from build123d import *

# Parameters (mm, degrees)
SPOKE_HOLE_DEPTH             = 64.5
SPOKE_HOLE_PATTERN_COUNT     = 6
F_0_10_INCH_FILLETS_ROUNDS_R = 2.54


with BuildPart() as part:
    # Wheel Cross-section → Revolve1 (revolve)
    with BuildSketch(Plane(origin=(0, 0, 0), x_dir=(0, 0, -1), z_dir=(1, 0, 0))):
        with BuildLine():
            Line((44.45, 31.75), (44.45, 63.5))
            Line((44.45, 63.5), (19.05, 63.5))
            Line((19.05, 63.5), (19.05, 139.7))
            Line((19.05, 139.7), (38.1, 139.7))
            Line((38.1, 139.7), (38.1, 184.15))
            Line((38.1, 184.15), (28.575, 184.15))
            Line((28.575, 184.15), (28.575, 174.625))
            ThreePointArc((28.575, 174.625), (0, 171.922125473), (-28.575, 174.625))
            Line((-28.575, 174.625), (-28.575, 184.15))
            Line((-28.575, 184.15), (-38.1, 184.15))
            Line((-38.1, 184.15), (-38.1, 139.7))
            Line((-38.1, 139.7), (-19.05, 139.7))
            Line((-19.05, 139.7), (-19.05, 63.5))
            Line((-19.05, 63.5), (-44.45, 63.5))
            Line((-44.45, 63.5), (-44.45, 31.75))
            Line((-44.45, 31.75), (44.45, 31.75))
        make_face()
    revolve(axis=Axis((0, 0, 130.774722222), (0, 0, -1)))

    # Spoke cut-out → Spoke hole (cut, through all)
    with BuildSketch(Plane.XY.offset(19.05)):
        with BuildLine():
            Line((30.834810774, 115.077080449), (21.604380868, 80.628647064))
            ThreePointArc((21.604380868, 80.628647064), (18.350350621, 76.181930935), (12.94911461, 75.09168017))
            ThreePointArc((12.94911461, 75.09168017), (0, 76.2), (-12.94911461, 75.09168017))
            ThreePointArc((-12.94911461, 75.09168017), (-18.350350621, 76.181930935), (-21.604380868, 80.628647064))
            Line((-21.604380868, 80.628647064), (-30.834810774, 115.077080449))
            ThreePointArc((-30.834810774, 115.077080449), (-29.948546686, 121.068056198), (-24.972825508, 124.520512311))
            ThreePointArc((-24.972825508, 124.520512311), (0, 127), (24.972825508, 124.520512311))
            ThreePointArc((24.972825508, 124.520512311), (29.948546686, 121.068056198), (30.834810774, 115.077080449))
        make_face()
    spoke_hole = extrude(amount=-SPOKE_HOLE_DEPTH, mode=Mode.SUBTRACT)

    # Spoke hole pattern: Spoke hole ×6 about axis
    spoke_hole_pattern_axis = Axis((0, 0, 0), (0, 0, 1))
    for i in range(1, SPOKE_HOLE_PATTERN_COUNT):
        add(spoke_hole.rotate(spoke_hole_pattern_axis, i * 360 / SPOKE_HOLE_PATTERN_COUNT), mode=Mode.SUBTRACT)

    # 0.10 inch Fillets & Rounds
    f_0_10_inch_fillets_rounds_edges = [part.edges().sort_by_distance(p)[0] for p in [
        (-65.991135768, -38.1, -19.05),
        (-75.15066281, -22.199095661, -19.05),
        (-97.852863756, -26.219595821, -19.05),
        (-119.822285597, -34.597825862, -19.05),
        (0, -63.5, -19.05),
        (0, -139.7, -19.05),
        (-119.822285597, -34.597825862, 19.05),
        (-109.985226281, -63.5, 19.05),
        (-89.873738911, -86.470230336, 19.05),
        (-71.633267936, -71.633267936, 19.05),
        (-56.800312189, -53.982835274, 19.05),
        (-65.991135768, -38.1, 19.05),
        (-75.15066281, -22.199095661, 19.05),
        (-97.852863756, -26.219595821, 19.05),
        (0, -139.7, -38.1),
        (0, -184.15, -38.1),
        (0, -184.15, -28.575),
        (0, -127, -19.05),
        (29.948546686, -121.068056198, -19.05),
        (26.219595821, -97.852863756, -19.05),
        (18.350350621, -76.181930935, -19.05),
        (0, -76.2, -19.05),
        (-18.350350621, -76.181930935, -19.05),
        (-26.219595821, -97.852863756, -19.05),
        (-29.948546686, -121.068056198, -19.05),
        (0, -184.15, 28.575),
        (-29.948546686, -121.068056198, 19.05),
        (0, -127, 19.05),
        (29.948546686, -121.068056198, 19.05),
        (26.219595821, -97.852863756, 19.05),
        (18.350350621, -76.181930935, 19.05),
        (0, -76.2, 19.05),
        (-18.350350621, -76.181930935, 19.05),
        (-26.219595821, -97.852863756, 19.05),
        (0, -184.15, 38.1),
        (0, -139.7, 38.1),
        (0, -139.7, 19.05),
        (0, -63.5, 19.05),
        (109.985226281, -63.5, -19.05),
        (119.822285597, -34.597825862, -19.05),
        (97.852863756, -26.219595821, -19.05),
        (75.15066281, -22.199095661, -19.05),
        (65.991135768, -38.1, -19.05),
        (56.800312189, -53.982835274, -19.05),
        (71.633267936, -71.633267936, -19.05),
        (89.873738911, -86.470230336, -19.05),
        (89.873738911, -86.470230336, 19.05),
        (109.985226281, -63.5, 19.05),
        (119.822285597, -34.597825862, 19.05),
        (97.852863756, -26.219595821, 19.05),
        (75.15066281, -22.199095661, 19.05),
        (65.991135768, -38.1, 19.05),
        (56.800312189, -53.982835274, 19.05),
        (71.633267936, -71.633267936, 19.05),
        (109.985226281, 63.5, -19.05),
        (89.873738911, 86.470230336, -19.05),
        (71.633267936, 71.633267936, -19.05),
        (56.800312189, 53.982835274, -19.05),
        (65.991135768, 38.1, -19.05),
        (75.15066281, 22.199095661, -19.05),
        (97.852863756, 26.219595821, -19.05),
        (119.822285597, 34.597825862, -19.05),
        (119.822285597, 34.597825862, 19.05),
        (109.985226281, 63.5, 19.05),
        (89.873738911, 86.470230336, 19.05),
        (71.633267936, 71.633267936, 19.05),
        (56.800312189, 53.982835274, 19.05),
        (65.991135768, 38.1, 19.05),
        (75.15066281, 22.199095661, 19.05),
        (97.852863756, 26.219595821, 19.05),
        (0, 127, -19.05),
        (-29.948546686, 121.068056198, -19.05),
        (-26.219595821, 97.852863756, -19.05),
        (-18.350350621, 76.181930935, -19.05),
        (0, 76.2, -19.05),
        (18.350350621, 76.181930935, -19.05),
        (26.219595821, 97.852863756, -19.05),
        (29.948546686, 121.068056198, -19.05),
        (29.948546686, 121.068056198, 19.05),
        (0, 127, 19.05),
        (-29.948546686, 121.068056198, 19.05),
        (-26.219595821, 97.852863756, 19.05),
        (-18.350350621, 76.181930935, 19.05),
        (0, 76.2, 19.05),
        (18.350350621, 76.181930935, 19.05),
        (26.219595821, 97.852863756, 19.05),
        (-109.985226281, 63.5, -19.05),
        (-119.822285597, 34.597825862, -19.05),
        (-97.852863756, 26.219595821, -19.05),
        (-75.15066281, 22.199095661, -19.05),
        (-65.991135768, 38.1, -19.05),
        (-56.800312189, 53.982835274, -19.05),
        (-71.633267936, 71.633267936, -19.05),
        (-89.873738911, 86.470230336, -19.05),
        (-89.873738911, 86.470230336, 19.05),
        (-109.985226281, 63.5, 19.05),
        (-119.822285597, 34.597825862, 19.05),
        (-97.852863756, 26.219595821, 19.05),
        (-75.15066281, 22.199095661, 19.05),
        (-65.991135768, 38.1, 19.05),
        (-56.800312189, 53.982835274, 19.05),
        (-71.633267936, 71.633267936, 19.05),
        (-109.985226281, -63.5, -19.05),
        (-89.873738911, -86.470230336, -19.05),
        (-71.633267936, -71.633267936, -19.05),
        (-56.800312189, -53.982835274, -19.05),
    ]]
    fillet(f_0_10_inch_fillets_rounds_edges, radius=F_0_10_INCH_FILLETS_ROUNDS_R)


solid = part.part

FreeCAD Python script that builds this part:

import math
import FreeCAD as App
import Part
import Sketcher
from FreeCAD import Vector
Q = App.Units.Quantity


def edges_at(feature, points):
    """Names of the edges that pass closest to the given points."""
    edges = feature.Shape.Edges
    near = lambda p: min(range(len(edges)), key=lambda i: edges[i].distToShape(Part.Vertex(*p))[0])
    return sorted({f"Edge{near(p) + 1}" for p in points})

doc = App.newDocument("Part")
body = doc.addObject("PartDesign::Body", "Body")

sketch1 = body.newObject("Sketcher::SketchObject", "Sketch")
sketch1.AttachmentSupport = (doc.getObject("YZ_Plane"), [""])
sketch1.MapMode = "FlatFace"
sketch1.addGeometry([
    Part.LineSegment(Vector(32, -44, 0), Vector(64, -44, 0)),
    Part.LineSegment(Vector(64, -44, 0), Vector(64, -19, 0)),
    Part.LineSegment(Vector(64, -19, 0), Vector(140, -19, 0)),
    Part.LineSegment(Vector(140, -19, 0), Vector(140, -38, 0)),
    Part.LineSegment(Vector(140, -38, 0), Vector(184, -38, 0)),
    Part.LineSegment(Vector(184, -38, 0), Vector(184, -29, 0)),
    Part.LineSegment(Vector(184, -29, 0), Vector(175, -29, 0)),
    Part.ArcOfCircle(Part.Circle(Vector(324, 0, 0), Vector(0, 0, 1), 152), math.radians(169), math.radians(191)),
    Part.LineSegment(Vector(175, 29, 0), Vector(184, 29, 0)),
    Part.LineSegment(Vector(184, 29, 0), Vector(184, 38, 0)),
    Part.LineSegment(Vector(184, 38, 0), Vector(140, 38, 0)),
    Part.LineSegment(Vector(140, 38, 0), Vector(140, 19, 0)),
    Part.LineSegment(Vector(140, 19, 0), Vector(64, 19, 0)),
    Part.LineSegment(Vector(64, 19, 0), Vector(64, 44, 0)),
    Part.LineSegment(Vector(64, 44, 0), Vector(32, 44, 0)),
    Part.LineSegment(Vector(32, 44, 0), Vector(32, -44, 0)),
], False)
sketch1.addConstraint([
    Sketcher.Constraint("Coincident", 0, 2, 1, 1),
    Sketcher.Constraint("Coincident", 1, 2, 2, 1),
    Sketcher.Constraint("Coincident", 2, 2, 3, 1),
    Sketcher.Constraint("Coincident", 3, 2, 4, 1),
    Sketcher.Constraint("Coincident", 4, 2, 5, 1),
    Sketcher.Constraint("Coincident", 5, 2, 6, 1),
    Sketcher.Constraint("Coincident", 6, 2, 7, 2),
    Sketcher.Constraint("Coincident", 7, 1, 8, 1),
    Sketcher.Constraint("Coincident", 8, 2, 9, 1),
    Sketcher.Constraint("Coincident", 9, 2, 10, 1),
    Sketcher.Constraint("Coincident", 10, 2, 11, 1),
    Sketcher.Constraint("Coincident", 11, 2, 12, 1),
    Sketcher.Constraint("Coincident", 12, 2, 13, 1),
    Sketcher.Constraint("Coincident", 13, 2, 14, 1),
    Sketcher.Constraint("Coincident", 14, 2, 15, 1),
    Sketcher.Constraint("Coincident", 15, 2, 0, 1),
    Sketcher.Constraint("Horizontal", 0),
    Sketcher.Constraint("Vertical", 1),
    Sketcher.Constraint("Horizontal", 2),
    Sketcher.Constraint("Vertical", 3),
    Sketcher.Constraint("Horizontal", 4),
    Sketcher.Constraint("Vertical", 5),
    Sketcher.Constraint("Horizontal", 6),
    Sketcher.Constraint("Horizontal", 8),
    Sketcher.Constraint("Vertical", 9),
    Sketcher.Constraint("Horizontal", 10),
    Sketcher.Constraint("Vertical", 11),
    Sketcher.Constraint("Horizontal", 12),
    Sketcher.Constraint("Vertical", 13),
    Sketcher.Constraint("Horizontal", 14),
    Sketcher.Constraint("Vertical", 15),
    Sketcher.Constraint("Symmetric", 6, 2, 7, 1, -1),
    Sketcher.Constraint("Symmetric", 4, 2, 9, 2, -1),
    Sketcher.Constraint("Symmetric", 2, 2, 11, 2, -1),
    Sketcher.Constraint("Symmetric", 0, 2, 13, 2, -1),
    Sketcher.Constraint("Equal", 8, 5),
    Sketcher.Constraint("Radius", 7, Q("6 in")),
    Sketcher.Constraint("DistanceX", 2, 1, 2, 2, Q("3 in")),
    Sketcher.Constraint("DistanceY", 1, 1, 1, 2, Q("1 in")),
    Sketcher.Constraint("DistanceY", 15, 2, 15, 1, Q("3.5 in")),
    Sketcher.Constraint("DistanceX", 0, 1, 0, 2, Q("1.25 in")),
    Sketcher.Constraint("DistanceX", 4, 1, 4, 2, Q("1.75 in")),
    Sketcher.Constraint("DistanceY", 3, 2, 3, 1, Q("0.75 in")),
    Sketcher.Constraint("DistanceX", -1, 1, 0, 2, Q("2.5 in")),
    Sketcher.Constraint("DistanceX", 6, 2, 6, 1, Q("0.375 in")),
])
revolution = body.newObject("PartDesign::Revolution", "Revolution")
revolution.Profile = sketch1
revolution.ReferenceAxis = (sketch1, ["V_Axis"])
revolution.Angle = 360

sketch2 = body.newObject("Sketcher::SketchObject", "Sketch001")
sketch2.AttachmentSupport = (doc.getObject("XY_Plane"), [""])
sketch2.MapMode = "FlatFace"
sketch2.AttachmentOffset = App.Placement(Vector(0, 0, 0.75 * 25.4), App.Rotation())
sketch2.addGeometry([
    Part.LineSegment(Vector(22, 81, 0), Vector(31, 115, 0)),
    Part.ArcOfCircle(Part.Circle(Vector(23, 117, 0), Vector(0, 0, 1), 8), math.radians(-15), math.radians(79)),
    Part.ArcOfCircle(Part.Circle(Vector(0, 0, 0), Vector(0, 0, 1), 127), math.radians(79), math.radians(101)),
    Part.ArcOfCircle(Part.Circle(Vector(-23, 117, 0), Vector(0, 0, 1), 8), math.radians(101), math.radians(195)),
    Part.LineSegment(Vector(-31, 115, 0), Vector(-22, 81, 0)),
    Part.ArcOfCircle(Part.Circle(Vector(-14, 83, 0), Vector(0, 0, 1), 8), math.radians(-165), math.radians(-80)),
    Part.ArcOfCircle(Part.Circle(Vector(0, 0, 0), Vector(0, 0, 1), 76), math.radians(80.22), math.radians(99.78)),
    Part.ArcOfCircle(Part.Circle(Vector(14, 83, 0), Vector(0, 0, 1), 8), math.radians(-100), math.radians(-15)),
], False)
sketch2.addConstraint([
    Sketcher.Constraint("Tangent", 0, 2, 1, 1),
    Sketcher.Constraint("Tangent", 1, 2, 2, 1),
    Sketcher.Constraint("Tangent", 2, 2, 3, 1),
    Sketcher.Constraint("Tangent", 3, 2, 4, 1),
    Sketcher.Constraint("Tangent", 4, 2, 5, 1),
    Sketcher.Constraint("Tangent", 5, 2, 6, 2),
    Sketcher.Constraint("Tangent", 6, 1, 7, 1),
    Sketcher.Constraint("Tangent", 7, 2, 0, 1),
    Sketcher.Constraint("Coincident", 2, 3, -1, 1),
    Sketcher.Constraint("Coincident", 6, 3, -1, 1),
    Sketcher.Constraint("Equal", 1, 3),
    Sketcher.Constraint("Equal", 3, 5),
    Sketcher.Constraint("Equal", 5, 7),
    Sketcher.Constraint("Symmetric", 0, 2, 3, 2, -2),
    Sketcher.Constraint("Radius", 2, Q("5 in")),
    Sketcher.Constraint("Radius", 6, Q("3 in")),
    Sketcher.Constraint("Radius", 1, Q("0.3 in")),
    Sketcher.Constraint("Angle", 0, Q("75 deg")),
    Sketcher.Constraint("DistanceX", 7, 3, 1, 2, Q("10.728799 mm")),
])
pocket1 = body.newObject("PartDesign::Pocket", "Pocket")
pocket1.Profile = sketch2
pocket1.Type = "ThroughAll"
doc.recompute()

polarpattern = body.newObject("PartDesign::PolarPattern", "PolarPattern")
polarpattern.Originals = [pocket1]
polarpattern.Axis = (doc.getObject("Z_Axis"), [""])
polarpattern.Angle = 360
polarpattern.Occurrences = 6
body.Tip = polarpattern
doc.recompute()

fillet = body.newObject("PartDesign::Fillet", "Fillet")
fillet.Base = (polarpattern, edges_at(polarpattern, [
    (-65.991, -38.1, -19.05),
    (-75.151, -22.199, -19.05),
    (-97.853, -26.22, -19.05),
    (-119.822, -34.598, -19.05),
    (0, -63.5, -19.05),
    (0, -139.7, -19.05),
    (-119.822, -34.598, 19.05),
    (-109.985, -63.5, 19.05),
    (-89.874, -86.47, 19.05),
    (-71.633, -71.633, 19.05),
    (-56.8, -53.983, 19.05),
    (-65.991, -38.1, 19.05),
    (-75.151, -22.199, 19.05),
    (-97.853, -26.22, 19.05),
    (0, -139.7, -38.1),
    (0, -184.15, -38.1),
    (0, -184.15, -28.575),
    (0, -127, -19.05),
    (29.949, -121.068, -19.05),
    (26.22, -97.853, -19.05),
    (18.35, -76.182, -19.05),
    (0, -76.2, -19.05),
    (-18.35, -76.182, -19.05),
    (-26.22, -97.853, -19.05),
    (-29.949, -121.068, -19.05),
    (0, -184.15, 28.575),
    (-29.949, -121.068, 19.05),
    (0, -127, 19.05),
    (29.949, -121.068, 19.05),
    (26.22, -97.853, 19.05),
    (18.35, -76.182, 19.05),
    (0, -76.2, 19.05),
    (-18.35, -76.182, 19.05),
    (-26.22, -97.853, 19.05),
    (0, -184.15, 38.1),
    (0, -139.7, 38.1),
    (0, -139.7, 19.05),
    (0, -63.5, 19.05),
    (109.985, -63.5, -19.05),
    (119.822, -34.598, -19.05),
    (97.853, -26.22, -19.05),
    (75.151, -22.199, -19.05),
    (65.991, -38.1, -19.05),
    (56.8, -53.983, -19.05),
    (71.633, -71.633, -19.05),
    (89.874, -86.47, -19.05),
    (89.874, -86.47, 19.05),
    (109.985, -63.5, 19.05),
    (119.822, -34.598, 19.05),
    (97.853, -26.22, 19.05),
    (75.151, -22.199, 19.05),
    (65.991, -38.1, 19.05),
    (56.8, -53.983, 19.05),
    (71.633, -71.633, 19.05),
    (109.985, 63.5, -19.05),
    (89.874, 86.47, -19.05),
    (71.633, 71.633, -19.05),
    (56.8, 53.983, -19.05),
    (65.991, 38.1, -19.05),
    (75.151, 22.199, -19.05),
    (97.853, 26.22, -19.05),
    (119.822, 34.598, -19.05),
    (119.822, 34.598, 19.05),
    (109.985, 63.5, 19.05),
    (89.874, 86.47, 19.05),
    (71.633, 71.633, 19.05),
    (56.8, 53.983, 19.05),
    (65.991, 38.1, 19.05),
    (75.151, 22.199, 19.05),
    (97.853, 26.22, 19.05),
    (0, 127, -19.05),
    (-29.949, 121.068, -19.05),
    (-26.22, 97.853, -19.05),
    (-18.35, 76.182, -19.05),
    (0, 76.2, -19.05),
    (18.35, 76.182, -19.05),
    (26.22, 97.853, -19.05),
    (29.949, 121.068, -19.05),
    (29.949, 121.068, 19.05),
    (0, 127, 19.05),
    (-29.949, 121.068, 19.05),
    (-26.22, 97.853, 19.05),
    (-18.35, 76.182, 19.05),
    (0, 76.2, 19.05),
    (18.35, 76.182, 19.05),
    (26.22, 97.853, 19.05),
    (-109.985, 63.5, -19.05),
    (-119.822, 34.598, -19.05),
    (-97.853, 26.22, -19.05),
    (-75.151, 22.199, -19.05),
    (-65.991, 38.1, -19.05),
    (-56.8, 53.983, -19.05),
    (-71.633, 71.633, -19.05),
    (-89.874, 86.47, -19.05),
    (-89.874, 86.47, 19.05),
    (-109.985, 63.5, 19.05),
    (-119.822, 34.598, 19.05),
    (-97.853, 26.22, 19.05),
    (-75.151, 22.199, 19.05),
    (-65.991, 38.1, 19.05),
    (-56.8, 53.983, 19.05),
    (-71.633, 71.633, 19.05),
    (-109.985, -63.5, -19.05),
    (-89.874, -86.47, -19.05),
    (-71.633, -71.633, -19.05),
    (-56.8, -53.983, -19.05),
]))
fillet.Radius = Q("0.1 in")

doc.recompute()
